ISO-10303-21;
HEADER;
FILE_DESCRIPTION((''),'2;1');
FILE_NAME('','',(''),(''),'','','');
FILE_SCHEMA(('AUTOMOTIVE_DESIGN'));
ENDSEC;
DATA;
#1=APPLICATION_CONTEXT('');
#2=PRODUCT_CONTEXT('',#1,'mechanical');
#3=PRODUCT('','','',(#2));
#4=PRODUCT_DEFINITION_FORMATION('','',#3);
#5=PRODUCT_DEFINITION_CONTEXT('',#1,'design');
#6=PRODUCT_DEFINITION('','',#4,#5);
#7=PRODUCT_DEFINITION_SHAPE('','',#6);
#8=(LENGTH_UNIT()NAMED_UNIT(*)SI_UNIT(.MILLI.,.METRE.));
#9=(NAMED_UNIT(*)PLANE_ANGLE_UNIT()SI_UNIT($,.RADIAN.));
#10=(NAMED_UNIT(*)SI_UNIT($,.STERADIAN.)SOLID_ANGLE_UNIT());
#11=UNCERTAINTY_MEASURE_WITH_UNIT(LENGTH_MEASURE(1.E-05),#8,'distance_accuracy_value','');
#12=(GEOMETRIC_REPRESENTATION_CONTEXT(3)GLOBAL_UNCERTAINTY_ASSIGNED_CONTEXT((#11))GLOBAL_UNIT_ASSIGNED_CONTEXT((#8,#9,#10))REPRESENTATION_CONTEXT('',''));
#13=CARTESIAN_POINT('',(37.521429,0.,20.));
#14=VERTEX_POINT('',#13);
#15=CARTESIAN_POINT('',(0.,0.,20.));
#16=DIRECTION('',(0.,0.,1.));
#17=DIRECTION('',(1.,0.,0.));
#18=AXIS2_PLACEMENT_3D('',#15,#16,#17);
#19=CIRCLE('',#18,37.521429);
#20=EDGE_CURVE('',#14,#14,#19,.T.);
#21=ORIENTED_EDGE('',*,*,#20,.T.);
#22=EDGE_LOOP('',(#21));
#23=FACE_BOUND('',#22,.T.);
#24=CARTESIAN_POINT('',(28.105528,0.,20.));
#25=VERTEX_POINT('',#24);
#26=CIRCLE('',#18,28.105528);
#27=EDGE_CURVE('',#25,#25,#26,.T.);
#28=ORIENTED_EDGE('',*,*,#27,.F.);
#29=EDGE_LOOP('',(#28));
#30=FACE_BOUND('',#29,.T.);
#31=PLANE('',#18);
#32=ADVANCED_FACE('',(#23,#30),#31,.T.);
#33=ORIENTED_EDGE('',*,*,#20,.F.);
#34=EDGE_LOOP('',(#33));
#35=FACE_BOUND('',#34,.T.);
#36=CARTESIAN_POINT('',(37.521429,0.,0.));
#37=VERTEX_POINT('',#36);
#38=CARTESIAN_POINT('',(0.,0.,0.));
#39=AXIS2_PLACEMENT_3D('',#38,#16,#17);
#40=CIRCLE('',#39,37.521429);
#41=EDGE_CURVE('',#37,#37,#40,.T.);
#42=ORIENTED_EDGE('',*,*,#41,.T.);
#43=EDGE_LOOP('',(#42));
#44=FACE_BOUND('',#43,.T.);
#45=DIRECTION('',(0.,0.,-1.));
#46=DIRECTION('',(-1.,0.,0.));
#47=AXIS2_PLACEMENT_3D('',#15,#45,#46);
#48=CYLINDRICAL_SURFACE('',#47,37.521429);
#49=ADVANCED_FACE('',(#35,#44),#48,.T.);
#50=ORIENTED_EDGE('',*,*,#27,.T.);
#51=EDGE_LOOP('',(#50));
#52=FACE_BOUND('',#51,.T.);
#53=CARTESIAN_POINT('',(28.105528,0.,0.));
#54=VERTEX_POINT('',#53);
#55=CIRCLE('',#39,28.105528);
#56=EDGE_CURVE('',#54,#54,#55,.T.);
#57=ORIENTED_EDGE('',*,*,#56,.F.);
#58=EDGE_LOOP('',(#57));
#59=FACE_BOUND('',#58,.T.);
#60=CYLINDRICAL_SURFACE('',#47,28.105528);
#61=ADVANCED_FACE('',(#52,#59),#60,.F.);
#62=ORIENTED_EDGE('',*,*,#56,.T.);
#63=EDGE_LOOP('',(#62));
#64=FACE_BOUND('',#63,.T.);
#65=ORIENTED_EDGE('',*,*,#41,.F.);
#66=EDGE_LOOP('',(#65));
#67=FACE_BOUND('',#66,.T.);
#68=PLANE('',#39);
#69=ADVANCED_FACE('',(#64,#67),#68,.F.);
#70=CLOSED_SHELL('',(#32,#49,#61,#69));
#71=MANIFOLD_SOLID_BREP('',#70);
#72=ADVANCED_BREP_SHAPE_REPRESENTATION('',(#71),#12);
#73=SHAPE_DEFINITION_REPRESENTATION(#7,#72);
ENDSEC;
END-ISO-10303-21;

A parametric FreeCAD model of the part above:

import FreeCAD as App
import Part
import Sketcher

doc = App.newDocument("Part")
body = doc.addObject("PartDesign::Body", "Body")

sketch1 = body.newObject("Sketcher::SketchObject", "Sketch")
sketch1.AttachmentSupport = (doc.getObject("XY_Plane"), [""])
sketch1.MapMode = "FlatFace"
sketch1.addGeometry(Part.Circle(App.Vector(0, 0, 0), App.Vector(0, 0, 1), 37.521429), False)
sketch1.addGeometry(Part.Circle(App.Vector(0, 0, 0), App.Vector(0, 0, 1), 28.105528), False)
sketch1.addConstraint(Sketcher.Constraint("Coincident", 0, 3, -1, 1))
sketch1.addConstraint(Sketcher.Constraint("Coincident", 1, 3, -1, 1))
sketch1.addConstraint(Sketcher.Constraint("Diameter", 0, 75.042857))
sketch1.addConstraint(Sketcher.Constraint("Diameter", 1, 56.211056))
pad1 = body.newObject("PartDesign::Pad", "Pad")
pad1.Profile = sketch1
pad1.Length = 20

doc.recompute()
